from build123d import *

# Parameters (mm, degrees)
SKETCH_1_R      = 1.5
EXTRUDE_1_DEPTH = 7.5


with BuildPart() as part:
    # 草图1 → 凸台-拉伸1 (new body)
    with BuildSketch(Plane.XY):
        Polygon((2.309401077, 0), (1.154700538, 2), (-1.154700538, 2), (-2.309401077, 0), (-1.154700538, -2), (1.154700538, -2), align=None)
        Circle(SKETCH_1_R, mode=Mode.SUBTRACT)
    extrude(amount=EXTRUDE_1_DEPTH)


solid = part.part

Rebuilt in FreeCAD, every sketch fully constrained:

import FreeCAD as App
import Part
import Sketcher
from FreeCAD import Vector
Q = App.Units.Quantity

doc = App.newDocument("Part")
body = doc.addObject("PartDesign::Body", "Body")

sketch1 = doc.addObject("Sketcher::SketchObject", "Sketch")
body.addObject(sketch1)
sketch1.AttachmentSupport = (doc.XY_Plane, [""])
sketch1.MapMode = "FlatFace"
sketch1.addGeometry([
    Part.LineSegment(Vector(2.3, 0, 0), Vector(1.2, 2, 0)),
    Part.LineSegment(Vector(1.2, 2, 0), Vector(-1.2, 2, 0)),
    Part.LineSegment(Vector(-1.2, 2, 0), Vector(-2.3, 0, 0)),
    Part.LineSegment(Vector(-2.3, 0, 0), Vector(-1.2, -2, 0)),
    Part.LineSegment(Vector(-1.2, -2, 0), Vector(1.2, -2, 0)),
    Part.LineSegment(Vector(1.2, -2, 0), Vector(2.3, 0, 0)),
    Part.Circle(Vector(0, 0, 0), Vector(0, 0, 1), 1.5),
], False)
sketch1.addConstraint([
    Sketcher.Constraint("Coincident", 0, 2, 1, 1),
    Sketcher.Constraint("Coincident", 1, 2, 2, 1),
    Sketcher.Constraint("Coincident", 2, 2, 3, 1),
    Sketcher.Constraint("Coincident", 3, 2, 4, 1),
    Sketcher.Constraint("Coincident", 4, 2, 5, 1),
    Sketcher.Constraint("Coincident", 5, 2, 0, 1),
    Sketcher.Constraint("Horizontal", 1),
    Sketcher.Constraint("Horizontal", 4),
    Sketcher.Constraint("Coincident", 6, 3, -1, 1),
    Sketcher.Constraint("Symmetric", 0, 2, 3, 2, -1, 1),
    Sketcher.Constraint("Symmetric", 2, 2, 5, 2, -1, 1),
    Sketcher.Constraint("PointOnObject", 2, 2, -1),
    Sketcher.Constraint("Parallel", 2, 5),
    Sketcher.Constraint("Vertical", 1, 2, 3, 2),
    Sketcher.Constraint("Diameter", 6, 3.0),
    Sketcher.Constraint("Angle", 0, Q("120 deg")),
    Sketcher.Constraint("DistanceY", -1, 1, 0, 2, 2.0),
    Sketcher.Constraint("DistanceX", 1, 2, 1, 1, 2.309401),
])
pad1 = doc.addObject("PartDesign::Pad", "Pad")
body.addObject(pad1)
pad1.Profile = sketch1
pad1.Length = 7.5

doc.recompute()
